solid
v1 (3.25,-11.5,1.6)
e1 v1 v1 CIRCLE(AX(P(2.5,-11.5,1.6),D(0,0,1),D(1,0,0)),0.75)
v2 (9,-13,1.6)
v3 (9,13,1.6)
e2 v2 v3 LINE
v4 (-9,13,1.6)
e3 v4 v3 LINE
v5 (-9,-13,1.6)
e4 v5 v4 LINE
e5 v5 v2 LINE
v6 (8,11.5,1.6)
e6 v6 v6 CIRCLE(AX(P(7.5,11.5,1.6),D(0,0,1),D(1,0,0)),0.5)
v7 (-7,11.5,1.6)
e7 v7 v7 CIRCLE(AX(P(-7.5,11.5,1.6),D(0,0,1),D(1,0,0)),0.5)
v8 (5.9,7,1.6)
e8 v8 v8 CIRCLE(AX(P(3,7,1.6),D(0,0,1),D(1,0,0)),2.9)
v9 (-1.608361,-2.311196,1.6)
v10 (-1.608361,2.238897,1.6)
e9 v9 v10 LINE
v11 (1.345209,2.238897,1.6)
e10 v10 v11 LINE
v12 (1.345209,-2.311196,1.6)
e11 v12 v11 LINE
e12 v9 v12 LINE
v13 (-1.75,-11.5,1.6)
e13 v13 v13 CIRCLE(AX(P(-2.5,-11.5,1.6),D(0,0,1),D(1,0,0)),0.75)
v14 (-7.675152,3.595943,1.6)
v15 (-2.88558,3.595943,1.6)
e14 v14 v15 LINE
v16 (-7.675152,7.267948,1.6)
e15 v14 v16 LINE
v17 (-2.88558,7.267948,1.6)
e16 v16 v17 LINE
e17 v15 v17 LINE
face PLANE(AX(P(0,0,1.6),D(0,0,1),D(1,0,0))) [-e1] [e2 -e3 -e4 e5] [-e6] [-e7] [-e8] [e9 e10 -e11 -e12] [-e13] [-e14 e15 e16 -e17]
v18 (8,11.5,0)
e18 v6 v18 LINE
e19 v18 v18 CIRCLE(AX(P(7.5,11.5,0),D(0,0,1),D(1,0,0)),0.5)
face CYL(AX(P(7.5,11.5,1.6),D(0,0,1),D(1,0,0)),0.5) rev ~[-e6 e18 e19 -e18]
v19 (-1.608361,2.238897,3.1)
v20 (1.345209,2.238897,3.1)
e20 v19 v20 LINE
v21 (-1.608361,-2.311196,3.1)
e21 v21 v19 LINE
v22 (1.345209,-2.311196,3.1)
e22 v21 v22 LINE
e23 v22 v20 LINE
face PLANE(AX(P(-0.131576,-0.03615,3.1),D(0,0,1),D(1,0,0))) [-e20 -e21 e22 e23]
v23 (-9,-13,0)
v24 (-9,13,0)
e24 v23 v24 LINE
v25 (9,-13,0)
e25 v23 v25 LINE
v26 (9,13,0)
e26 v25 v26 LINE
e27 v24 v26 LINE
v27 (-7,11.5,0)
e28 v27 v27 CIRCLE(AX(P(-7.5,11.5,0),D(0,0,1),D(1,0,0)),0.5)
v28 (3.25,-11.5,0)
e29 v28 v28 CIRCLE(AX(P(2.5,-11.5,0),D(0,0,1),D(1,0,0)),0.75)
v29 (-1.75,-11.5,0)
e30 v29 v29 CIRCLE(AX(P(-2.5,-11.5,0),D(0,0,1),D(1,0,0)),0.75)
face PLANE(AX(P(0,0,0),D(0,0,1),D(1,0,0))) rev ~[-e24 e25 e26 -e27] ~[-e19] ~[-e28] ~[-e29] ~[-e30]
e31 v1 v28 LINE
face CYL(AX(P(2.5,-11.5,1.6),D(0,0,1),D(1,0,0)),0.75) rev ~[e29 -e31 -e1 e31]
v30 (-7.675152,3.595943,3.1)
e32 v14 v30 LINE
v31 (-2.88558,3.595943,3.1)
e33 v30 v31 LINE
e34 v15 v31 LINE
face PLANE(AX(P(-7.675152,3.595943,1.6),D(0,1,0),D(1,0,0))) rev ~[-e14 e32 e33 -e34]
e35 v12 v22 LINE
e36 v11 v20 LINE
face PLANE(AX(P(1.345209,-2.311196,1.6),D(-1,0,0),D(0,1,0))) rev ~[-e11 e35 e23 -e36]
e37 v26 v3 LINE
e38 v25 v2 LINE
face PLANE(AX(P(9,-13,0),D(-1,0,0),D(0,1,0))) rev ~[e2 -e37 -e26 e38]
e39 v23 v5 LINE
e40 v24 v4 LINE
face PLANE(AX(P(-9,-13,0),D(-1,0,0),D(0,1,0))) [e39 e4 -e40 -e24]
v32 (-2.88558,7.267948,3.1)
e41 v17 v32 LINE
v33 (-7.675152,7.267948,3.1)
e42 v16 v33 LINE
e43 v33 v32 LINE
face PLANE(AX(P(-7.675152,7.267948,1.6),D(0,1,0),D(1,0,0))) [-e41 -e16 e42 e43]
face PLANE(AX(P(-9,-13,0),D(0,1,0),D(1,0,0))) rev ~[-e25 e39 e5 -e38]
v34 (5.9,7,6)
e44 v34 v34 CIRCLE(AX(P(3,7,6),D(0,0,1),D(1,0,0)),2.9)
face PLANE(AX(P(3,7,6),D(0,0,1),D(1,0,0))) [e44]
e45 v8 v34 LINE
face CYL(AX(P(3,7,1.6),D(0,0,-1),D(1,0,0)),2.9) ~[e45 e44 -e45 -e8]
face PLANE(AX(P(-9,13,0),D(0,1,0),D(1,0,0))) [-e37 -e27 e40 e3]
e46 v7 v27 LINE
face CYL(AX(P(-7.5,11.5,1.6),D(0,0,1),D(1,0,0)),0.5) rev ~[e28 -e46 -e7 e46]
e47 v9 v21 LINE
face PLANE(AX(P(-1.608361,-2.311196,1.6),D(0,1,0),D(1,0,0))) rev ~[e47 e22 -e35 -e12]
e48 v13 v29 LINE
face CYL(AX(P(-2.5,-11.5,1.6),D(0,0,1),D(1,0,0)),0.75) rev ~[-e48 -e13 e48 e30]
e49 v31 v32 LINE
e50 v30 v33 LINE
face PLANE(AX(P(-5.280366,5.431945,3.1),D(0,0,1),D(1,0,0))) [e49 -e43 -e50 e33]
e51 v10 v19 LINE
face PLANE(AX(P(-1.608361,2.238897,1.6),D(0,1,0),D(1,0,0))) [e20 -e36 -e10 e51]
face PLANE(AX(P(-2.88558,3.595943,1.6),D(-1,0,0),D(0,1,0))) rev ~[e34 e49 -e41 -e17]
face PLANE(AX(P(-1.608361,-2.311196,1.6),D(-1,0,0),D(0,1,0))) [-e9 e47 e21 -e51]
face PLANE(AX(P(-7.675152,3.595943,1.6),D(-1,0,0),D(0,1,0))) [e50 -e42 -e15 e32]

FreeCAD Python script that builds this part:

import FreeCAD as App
import Part
import Sketcher
from FreeCAD import Vector
Q = App.Units.Quantity


def add_polygon(sketch, points):
    """Adds a closed chain of lines whose ends are joined by coincident constraints."""
    first, n = sketch.GeometryCount, len(points)
    for a, b in zip(points, points[1:] + points[:1]):
        sketch.addGeometry(Part.LineSegment(App.Vector(*a, 0), App.Vector(*b, 0)), False)
    for i in range(n):
        sketch.addConstraint(Sketcher.Constraint("Coincident", first + i, 2, first + (i + 1) % n, 1))

doc = App.newDocument("Part")
body = doc.addObject("PartDesign::Body", "Body")

# Sketch on XY plane
sketch1 = body.newObject("Sketcher::SketchObject", "Sketch")
sketch1.AttachmentSupport = (doc.getObject("XY_Plane"), [""])
sketch1.MapMode = "FlatFace"
add_polygon(sketch1, [(-9, 13), (-9, -13), (9, -13), (9, 13)])  # lines 0-3
sketch1.addConstraint([
    Sketcher.Constraint("Vertical", 0),
    Sketcher.Constraint("Horizontal", 1),
    Sketcher.Constraint("Vertical", 2),
    Sketcher.Constraint("Horizontal", 3),
    Sketcher.Constraint("Symmetric", 0, 2, 2, 2, -1, 1),
    Sketcher.Constraint("DistanceX", 1, 1, 1, 2, Q("18 mm")),
    Sketcher.Constraint("DistanceY", 0, 2, 0, 1, Q("26 mm")),
])
pad1 = body.newObject("PartDesign::Pad", "Pad")
pad1.Profile = sketch1
pad1.Length = 1.6

# Sketch on XY plane
sketch2 = body.newObject("Sketcher::SketchObject", "Sketch001")
sketch2.AttachmentSupport = (doc.getObject("XY_Plane"), [""])
sketch2.MapMode = "FlatFace"
sketch2.AttachmentOffset = App.Placement(Vector(0, 0, 1.6), App.Rotation())
sketch2.addGeometry(Part.Circle(Vector(3, 7, 0), Vector(0, 0, 1), 2.9), False)
sketch2.addConstraint([
    Sketcher.Constraint("Diameter", 0, Q("5.8 mm")),
    Sketcher.Constraint("DistanceX", -1, 1, 0, 3, Q("3 mm")),
    Sketcher.Constraint("DistanceY", -1, 1, 0, 3, Q("7 mm")),
])
pad2 = body.newObject("PartDesign::Pad", "Pad001")
pad2.Profile = sketch2
pad2.Length = 4.4

# Sketch on XY plane
sketch3 = body.newObject("Sketcher::SketchObject", "Sketch002")
sketch3.AttachmentSupport = (doc.getObject("XY_Plane"), [""])
sketch3.MapMode = "FlatFace"
sketch3.AttachmentOffset = App.Placement(Vector(0, 0, 1.6), App.Rotation())
add_polygon(sketch3, [(-7.7, 7.3), (-7.7, 3.6), (-2.9, 3.6), (-2.9, 7.3)])  # lines 0-3
add_polygon(sketch3, [(-1.6, 2.2), (-1.6, -2.3), (1.3, -2.3), (1.3, 2.2)])  # lines 4-7
sketch3.addConstraint([
    Sketcher.Constraint("Vertical", 0),
    Sketcher.Constraint("Horizontal", 1),
    Sketcher.Constraint("Vertical", 2),
    Sketcher.Constraint("Horizontal", 3),
    Sketcher.Constraint("Vertical", 4),
    Sketcher.Constraint("Horizontal", 5),
    Sketcher.Constraint("Vertical", 6),
    Sketcher.Constraint("Horizontal", 7),
    Sketcher.Constraint("DistanceX", 1, 1, 1, 2, Q("4.789572 mm")),
    Sketcher.Constraint("DistanceX", 5, 1, 5, 2, Q("2.95357 mm")),
    Sketcher.Constraint("DistanceY", 0, 2, 0, 1, Q("3.672005 mm")),
    Sketcher.Constraint("DistanceY", 4, 2, 4, 1, Q("4.550093 mm")),
    Sketcher.Constraint("DistanceX", 0, 2, -1, 1, Q("7.675152 mm")),
    Sketcher.Constraint("DistanceX", 4, 2, -1, 1, Q("1.608361 mm")),
    Sketcher.Constraint("DistanceY", 4, 2, 1, 2, Q("5.907139 mm")),
    Sketcher.Constraint("DistanceY", -1, 1, 0, 2, Q("3.595943 mm")),
])
pad3 = body.newObject("PartDesign::Pad", "Pad002")
pad3.Profile = sketch3
pad3.Length = 1.5

# Sketch on XY plane
sketch4 = body.newObject("Sketcher::SketchObject", "Sketch003")
sketch4.AttachmentSupport = (doc.getObject("XY_Plane"), [""])
sketch4.MapMode = "FlatFace"
sketch4.AttachmentOffset = App.Placement(Vector(0, 0, 1.6), App.Rotation())
sketch4.addGeometry([
    Part.Circle(Vector(-2.5, -11.5, 0), Vector(0, 0, 1), 0.8),
    Part.Circle(Vector(2.5, -11.5, 0), Vector(0, 0, 1), 0.8),
    Part.Circle(Vector(7.5, 11.5, 0), Vector(0, 0, 1), 0.5),
    Part.Circle(Vector(-7.5, 11.5, 0), Vector(0, 0, 1), 0.5),
], False)
sketch4.addConstraint([
    Sketcher.Constraint("Equal", 0, 1),
    Sketcher.Constraint("Equal", 2, 3),
    Sketcher.Constraint("Symmetric", 0, 3, 1, 3, -2),
    Sketcher.Constraint("Symmetric", 2, 3, 3, 3, -2),
    Sketcher.Constraint("Diameter", 2, Q("1 mm")),
    Sketcher.Constraint("Diameter", 0, Q("1.5 mm")),
    Sketcher.Constraint("DistanceX", 0, 3, 1, 3, Q("5 mm")),
    Sketcher.Constraint("DistanceX", 1, 3, 2, 3, Q("5 mm")),
    Sketcher.Constraint("DistanceY", 1, 3, 2, 3, Q("23 mm")),
    Sketcher.Constraint("DistanceY", 0, 3, -1, 1, Q("11.5 mm")),
])
pocket1 = body.newObject("PartDesign::Pocket", "Pocket")
pocket1.Profile = sketch4
pocket1.Length = 25

doc.recompute()
